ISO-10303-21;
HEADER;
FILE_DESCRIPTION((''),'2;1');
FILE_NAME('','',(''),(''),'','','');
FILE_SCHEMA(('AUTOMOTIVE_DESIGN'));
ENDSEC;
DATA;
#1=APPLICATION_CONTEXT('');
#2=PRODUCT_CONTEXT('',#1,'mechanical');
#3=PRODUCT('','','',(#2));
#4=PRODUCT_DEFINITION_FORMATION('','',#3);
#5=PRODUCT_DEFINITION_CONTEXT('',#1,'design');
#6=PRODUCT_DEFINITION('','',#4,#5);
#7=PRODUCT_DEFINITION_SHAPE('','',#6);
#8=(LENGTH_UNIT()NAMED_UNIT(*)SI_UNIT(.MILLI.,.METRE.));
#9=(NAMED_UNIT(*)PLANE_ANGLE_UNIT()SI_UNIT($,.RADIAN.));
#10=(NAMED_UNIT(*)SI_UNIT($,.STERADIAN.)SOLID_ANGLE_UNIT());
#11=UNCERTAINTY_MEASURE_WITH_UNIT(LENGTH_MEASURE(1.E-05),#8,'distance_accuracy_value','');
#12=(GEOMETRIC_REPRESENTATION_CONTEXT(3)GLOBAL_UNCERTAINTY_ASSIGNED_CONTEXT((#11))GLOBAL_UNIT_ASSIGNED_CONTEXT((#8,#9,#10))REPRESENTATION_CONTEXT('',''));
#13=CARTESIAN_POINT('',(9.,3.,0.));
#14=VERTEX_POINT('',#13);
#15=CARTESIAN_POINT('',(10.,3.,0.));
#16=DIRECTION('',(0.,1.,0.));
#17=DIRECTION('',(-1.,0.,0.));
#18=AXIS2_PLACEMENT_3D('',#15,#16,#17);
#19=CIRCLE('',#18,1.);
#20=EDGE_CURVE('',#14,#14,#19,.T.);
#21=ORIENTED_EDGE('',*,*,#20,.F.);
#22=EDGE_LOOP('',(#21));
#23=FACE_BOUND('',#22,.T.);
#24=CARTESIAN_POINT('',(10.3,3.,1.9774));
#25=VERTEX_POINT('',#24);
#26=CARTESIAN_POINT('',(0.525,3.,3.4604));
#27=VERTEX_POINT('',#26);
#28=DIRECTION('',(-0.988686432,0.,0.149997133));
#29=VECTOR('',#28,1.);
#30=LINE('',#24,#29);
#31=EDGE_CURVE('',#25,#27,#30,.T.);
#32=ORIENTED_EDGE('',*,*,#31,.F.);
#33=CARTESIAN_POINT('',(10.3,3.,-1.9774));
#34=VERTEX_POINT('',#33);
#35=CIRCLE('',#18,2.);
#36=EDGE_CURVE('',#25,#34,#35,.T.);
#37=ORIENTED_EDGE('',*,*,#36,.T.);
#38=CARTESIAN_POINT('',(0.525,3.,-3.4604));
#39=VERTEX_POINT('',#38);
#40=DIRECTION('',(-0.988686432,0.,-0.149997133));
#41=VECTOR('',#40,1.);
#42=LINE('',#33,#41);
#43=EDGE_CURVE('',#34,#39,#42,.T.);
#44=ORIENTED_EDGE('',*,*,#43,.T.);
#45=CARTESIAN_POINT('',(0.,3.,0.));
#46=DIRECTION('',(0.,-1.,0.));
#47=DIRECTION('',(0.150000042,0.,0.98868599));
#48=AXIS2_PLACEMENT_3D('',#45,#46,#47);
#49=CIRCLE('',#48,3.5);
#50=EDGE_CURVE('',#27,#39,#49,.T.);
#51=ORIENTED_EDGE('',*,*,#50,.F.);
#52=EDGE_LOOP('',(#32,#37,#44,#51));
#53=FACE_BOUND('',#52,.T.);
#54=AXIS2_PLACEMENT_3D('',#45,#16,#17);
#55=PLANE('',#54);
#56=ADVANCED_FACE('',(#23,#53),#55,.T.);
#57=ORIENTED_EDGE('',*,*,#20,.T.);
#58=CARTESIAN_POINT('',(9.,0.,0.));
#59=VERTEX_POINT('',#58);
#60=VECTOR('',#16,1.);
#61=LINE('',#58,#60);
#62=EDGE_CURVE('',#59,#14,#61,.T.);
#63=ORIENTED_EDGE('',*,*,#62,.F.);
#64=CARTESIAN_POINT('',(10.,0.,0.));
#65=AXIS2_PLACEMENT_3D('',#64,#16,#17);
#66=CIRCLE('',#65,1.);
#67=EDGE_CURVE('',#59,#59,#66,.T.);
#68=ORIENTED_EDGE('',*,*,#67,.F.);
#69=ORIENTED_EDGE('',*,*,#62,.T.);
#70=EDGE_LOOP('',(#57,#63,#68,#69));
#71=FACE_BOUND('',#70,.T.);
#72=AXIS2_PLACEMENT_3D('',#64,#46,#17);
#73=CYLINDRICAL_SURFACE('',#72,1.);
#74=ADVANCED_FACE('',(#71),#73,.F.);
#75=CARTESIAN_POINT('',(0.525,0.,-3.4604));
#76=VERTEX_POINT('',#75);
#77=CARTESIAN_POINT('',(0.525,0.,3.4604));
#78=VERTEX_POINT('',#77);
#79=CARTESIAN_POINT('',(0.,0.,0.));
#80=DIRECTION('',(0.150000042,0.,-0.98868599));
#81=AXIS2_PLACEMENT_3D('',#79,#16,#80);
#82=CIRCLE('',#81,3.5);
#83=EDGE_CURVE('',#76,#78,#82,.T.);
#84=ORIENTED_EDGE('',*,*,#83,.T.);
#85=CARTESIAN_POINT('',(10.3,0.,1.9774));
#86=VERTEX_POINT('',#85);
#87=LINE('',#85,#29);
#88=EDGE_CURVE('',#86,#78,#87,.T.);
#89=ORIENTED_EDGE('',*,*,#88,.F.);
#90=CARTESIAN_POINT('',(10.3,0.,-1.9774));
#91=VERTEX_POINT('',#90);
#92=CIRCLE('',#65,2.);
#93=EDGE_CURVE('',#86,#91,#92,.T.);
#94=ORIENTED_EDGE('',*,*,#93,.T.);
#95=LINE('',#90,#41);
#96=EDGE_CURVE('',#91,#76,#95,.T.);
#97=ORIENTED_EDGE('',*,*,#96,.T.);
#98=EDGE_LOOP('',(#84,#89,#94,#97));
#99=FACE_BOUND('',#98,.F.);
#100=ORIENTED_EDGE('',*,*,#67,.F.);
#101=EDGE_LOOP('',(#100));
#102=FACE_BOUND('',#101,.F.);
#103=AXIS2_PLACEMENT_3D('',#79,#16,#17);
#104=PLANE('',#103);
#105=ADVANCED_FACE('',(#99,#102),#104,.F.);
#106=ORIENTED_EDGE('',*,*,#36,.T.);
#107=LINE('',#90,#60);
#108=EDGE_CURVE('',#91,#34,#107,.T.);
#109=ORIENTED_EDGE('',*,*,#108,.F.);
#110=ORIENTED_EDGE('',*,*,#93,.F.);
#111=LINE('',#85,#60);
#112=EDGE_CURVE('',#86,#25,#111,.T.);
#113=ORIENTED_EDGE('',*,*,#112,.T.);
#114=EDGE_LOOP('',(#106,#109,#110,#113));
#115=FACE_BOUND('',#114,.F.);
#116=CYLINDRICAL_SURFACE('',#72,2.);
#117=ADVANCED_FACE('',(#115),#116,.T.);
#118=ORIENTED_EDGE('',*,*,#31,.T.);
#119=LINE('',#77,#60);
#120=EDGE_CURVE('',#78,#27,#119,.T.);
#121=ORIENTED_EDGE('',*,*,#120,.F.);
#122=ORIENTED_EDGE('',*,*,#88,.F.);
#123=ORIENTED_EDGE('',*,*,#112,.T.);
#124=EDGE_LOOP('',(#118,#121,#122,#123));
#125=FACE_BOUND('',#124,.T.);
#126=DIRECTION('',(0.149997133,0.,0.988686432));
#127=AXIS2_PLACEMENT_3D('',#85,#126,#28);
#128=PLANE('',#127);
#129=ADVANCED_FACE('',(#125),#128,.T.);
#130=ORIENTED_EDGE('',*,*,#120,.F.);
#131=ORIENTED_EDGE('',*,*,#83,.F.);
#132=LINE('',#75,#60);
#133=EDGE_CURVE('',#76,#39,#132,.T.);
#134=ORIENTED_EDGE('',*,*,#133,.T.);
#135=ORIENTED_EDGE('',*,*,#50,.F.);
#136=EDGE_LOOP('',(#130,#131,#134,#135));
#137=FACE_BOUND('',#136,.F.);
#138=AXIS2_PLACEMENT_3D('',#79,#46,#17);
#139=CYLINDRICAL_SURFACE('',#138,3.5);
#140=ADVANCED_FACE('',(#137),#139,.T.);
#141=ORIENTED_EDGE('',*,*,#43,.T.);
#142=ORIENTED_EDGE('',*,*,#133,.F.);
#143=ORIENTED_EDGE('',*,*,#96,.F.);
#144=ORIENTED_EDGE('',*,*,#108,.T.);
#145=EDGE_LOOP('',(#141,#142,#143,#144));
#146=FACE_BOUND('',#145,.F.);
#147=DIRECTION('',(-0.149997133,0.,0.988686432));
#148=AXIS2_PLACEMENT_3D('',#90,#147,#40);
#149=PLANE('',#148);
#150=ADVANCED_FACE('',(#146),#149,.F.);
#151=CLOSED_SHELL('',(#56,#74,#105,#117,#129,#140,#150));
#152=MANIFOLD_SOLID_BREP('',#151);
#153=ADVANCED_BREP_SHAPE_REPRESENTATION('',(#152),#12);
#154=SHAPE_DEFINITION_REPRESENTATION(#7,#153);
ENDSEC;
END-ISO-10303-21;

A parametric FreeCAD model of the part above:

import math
import FreeCAD as App
import Part
import Sketcher

doc = App.newDocument("Part")
body = doc.addObject("PartDesign::Body", "Body")

# Sketch on XZ plane
sketch1 = doc.addObject("Sketcher::SketchObject", "Sketch")
body.addObject(sketch1)
sketch1.AttachmentSupport = (doc.XZ_Plane, [""])
sketch1.MapMode = "FlatFace"
sketch1.addGeometry([
    Part.ArcOfCircle(Part.Circle(App.Vector(0, 0, 0), App.Vector(0, 0, 1), 3.5), math.radians(81), math.radians(279)),  # 0
    Part.LineSegment(App.Vector(0.5, 3.5, 0), App.Vector(10.3, 2, 0)),  # 1
    Part.ArcOfCircle(Part.Circle(App.Vector(10, 0, 0), App.Vector(0, 0, 1), 2), math.radians(-81), math.radians(81)),  # 2
    Part.LineSegment(App.Vector(10.3, -2, 0), App.Vector(0.5, -3.5, 0)),  # 3
    Part.Circle(App.Vector(10, 0, 0), App.Vector(0, 0, 1), 1),  # 4
], False)
sketch1.addConstraint([
    Sketcher.Constraint("Tangent", 0, 1, 1, 1),
    Sketcher.Constraint("Tangent", 1, 2, 2, 2),
    Sketcher.Constraint("Tangent", 2, 1, 3, 1),
    Sketcher.Constraint("Tangent", 3, 2, 0, 2),
    Sketcher.Constraint("Coincident", 0, 3, -1, 1),
    Sketcher.Constraint("Coincident", 4, 3, 2, 3),
    Sketcher.Constraint("PointOnObject", 2, 3, -1),
    Sketcher.Constraint("Diameter", 4, 2.0),
    Sketcher.Constraint("Radius", 2, 2.0),
    Sketcher.Constraint("Radius", 0, 3.5),
    Sketcher.Constraint("DistanceX", -1, 1, 2, 3, 10.0),
])
pad1 = doc.addObject("PartDesign::Pad", "Pad")
body.addObject(pad1)
pad1.Profile = sketch1
pad1.Length = 3
pad1.Reversed = True

doc.recompute()
